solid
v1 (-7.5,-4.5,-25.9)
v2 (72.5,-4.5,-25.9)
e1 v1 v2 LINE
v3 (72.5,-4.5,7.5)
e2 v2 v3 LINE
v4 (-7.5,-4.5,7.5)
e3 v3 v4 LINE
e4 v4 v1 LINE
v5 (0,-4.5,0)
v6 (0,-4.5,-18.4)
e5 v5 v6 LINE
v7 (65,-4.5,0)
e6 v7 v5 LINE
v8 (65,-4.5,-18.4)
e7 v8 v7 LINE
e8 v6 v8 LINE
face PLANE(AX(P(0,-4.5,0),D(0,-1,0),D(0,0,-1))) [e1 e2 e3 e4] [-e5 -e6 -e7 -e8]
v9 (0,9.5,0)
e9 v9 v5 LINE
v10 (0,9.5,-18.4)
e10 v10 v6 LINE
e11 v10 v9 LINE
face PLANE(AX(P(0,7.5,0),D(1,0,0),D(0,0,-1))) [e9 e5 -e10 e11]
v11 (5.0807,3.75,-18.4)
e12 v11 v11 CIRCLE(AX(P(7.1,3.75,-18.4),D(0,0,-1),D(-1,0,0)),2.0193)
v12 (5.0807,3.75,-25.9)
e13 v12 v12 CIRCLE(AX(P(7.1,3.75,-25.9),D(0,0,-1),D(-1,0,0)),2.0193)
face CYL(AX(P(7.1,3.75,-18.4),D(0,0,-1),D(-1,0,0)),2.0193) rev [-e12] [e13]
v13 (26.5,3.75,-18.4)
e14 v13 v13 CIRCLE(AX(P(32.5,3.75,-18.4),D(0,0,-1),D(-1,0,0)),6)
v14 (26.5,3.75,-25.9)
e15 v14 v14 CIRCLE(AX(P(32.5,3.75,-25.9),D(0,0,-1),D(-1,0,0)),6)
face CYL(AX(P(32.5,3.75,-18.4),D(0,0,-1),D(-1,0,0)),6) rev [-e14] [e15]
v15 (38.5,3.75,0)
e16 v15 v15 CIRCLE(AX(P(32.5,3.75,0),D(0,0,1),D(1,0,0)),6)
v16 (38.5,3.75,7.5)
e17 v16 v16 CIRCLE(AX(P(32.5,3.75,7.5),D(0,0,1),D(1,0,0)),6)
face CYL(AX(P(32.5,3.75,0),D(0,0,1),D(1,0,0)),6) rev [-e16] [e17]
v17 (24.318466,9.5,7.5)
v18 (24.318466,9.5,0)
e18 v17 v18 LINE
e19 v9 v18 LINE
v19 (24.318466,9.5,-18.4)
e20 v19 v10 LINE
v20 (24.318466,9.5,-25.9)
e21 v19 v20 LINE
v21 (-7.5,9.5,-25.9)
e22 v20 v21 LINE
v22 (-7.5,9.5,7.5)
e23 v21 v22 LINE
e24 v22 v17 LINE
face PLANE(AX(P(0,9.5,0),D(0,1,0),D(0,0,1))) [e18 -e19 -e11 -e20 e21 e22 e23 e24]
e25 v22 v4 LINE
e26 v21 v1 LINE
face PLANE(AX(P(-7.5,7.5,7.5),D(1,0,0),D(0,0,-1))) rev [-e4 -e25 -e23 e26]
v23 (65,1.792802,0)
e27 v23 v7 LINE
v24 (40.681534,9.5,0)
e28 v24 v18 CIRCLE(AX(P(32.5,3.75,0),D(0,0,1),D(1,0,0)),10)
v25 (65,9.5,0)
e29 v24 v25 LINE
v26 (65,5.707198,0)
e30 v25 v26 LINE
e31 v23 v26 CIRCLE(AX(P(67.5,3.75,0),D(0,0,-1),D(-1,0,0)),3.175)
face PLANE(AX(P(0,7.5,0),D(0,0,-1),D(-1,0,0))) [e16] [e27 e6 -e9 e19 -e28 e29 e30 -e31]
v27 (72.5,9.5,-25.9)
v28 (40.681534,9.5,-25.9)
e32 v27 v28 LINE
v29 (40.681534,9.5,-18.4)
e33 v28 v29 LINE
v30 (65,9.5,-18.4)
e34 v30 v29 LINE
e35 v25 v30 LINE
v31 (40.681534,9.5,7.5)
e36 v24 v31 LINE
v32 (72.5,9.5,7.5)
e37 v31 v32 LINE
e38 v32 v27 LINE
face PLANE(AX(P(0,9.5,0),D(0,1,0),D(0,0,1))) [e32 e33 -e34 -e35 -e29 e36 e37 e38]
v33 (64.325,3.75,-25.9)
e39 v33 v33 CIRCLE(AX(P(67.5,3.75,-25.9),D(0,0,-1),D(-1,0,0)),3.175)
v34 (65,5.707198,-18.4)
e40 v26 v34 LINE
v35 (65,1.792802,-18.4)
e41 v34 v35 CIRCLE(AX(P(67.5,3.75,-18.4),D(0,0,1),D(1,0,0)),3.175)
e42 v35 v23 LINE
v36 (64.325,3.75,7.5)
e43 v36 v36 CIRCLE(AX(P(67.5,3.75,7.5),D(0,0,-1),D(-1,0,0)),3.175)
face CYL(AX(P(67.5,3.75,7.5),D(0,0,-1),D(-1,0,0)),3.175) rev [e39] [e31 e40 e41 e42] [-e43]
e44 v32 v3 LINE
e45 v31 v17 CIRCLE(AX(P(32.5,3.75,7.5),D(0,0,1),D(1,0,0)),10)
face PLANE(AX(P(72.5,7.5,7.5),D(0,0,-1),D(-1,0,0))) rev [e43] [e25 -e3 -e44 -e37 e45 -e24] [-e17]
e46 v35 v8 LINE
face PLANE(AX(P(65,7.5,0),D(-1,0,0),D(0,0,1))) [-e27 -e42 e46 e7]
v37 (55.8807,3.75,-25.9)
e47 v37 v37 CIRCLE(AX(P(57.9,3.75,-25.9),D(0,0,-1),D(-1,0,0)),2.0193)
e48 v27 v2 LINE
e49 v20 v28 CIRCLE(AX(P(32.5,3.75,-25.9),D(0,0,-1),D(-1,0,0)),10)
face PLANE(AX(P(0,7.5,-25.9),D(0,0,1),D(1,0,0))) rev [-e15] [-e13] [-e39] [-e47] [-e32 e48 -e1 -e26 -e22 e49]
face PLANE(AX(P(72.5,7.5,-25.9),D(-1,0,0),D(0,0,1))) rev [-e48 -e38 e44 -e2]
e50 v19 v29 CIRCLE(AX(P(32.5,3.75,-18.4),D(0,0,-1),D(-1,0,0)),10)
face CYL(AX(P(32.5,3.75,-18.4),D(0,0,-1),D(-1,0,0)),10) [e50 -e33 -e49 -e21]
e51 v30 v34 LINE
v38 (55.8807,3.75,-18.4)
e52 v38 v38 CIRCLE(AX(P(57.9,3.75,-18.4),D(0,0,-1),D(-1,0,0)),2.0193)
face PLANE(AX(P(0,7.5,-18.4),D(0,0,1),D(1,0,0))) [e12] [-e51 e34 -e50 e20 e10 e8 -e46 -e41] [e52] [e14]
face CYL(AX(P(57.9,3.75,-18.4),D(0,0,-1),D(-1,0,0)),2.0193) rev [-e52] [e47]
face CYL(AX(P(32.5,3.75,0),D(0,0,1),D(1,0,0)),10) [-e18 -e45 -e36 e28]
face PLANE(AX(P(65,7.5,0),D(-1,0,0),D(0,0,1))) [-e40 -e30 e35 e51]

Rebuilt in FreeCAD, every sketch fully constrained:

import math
import FreeCAD as App
import Part
import Sketcher

V = App.Vector

doc = App.newDocument("Part")
body = doc.addObject("PartDesign::Body", "Body")

sketch1 = doc.addObject("Sketcher::SketchObject", "Sketch")
body.addObject(sketch1)
sketch1.AttachmentSupport = (doc.XZ_Plane, [""])
sketch1.MapMode = "FlatFace"
sketch1.addGeometry([
    Part.LineSegment(V(72.5, -25.9, 0), V(-7.5, -25.9, 0)),
    Part.LineSegment(V(-7.5, -25.9, 0), V(-7.5, 7.5, 0)),
    Part.LineSegment(V(-7.5, 7.5, 0), V(72.5, 7.5, 0)),
    Part.LineSegment(V(72.5, 7.5, 0), V(72.5, -25.9, 0)),
    Part.LineSegment(V(0, 0, 0), V(0, -18.4, 0)),
    Part.LineSegment(V(0, -18.4, 0), V(65, -18.4, 0)),
    Part.LineSegment(V(65, -18.4, 0), V(65, 0, 0)),
    Part.LineSegment(V(65, 0, 0), V(0, 0, 0)),
], False)
sketch1.addConstraint([
    Sketcher.Constraint("Coincident", 0, 2, 1, 1),
    Sketcher.Constraint("Coincident", 1, 2, 2, 1),
    Sketcher.Constraint("Coincident", 2, 2, 3, 1),
    Sketcher.Constraint("Coincident", 3, 2, 0, 1),
    Sketcher.Constraint("Coincident", 4, 2, 5, 1),
    Sketcher.Constraint("Coincident", 5, 2, 6, 1),
    Sketcher.Constraint("Coincident", 6, 2, 7, 1),
    Sketcher.Constraint("Coincident", 7, 2, 4, 1),
    Sketcher.Constraint("Horizontal", 0),
    Sketcher.Constraint("Vertical", 1),
    Sketcher.Constraint("Horizontal", 2),
    Sketcher.Constraint("Vertical", 3),
    Sketcher.Constraint("Vertical", 4),
    Sketcher.Constraint("Horizontal", 5),
    Sketcher.Constraint("Vertical", 6),
    Sketcher.Constraint("Horizontal", 7),
    Sketcher.Constraint("Coincident", 7, 2, -1, 1),
    Sketcher.Constraint("DistanceX", 0, 2, 0, 1, 80.0),
    Sketcher.Constraint("DistanceX", 5, 1, 5, 2, 65.0),
    Sketcher.Constraint("DistanceY", 1, 1, 1, 2, 33.4),
    Sketcher.Constraint("DistanceY", 4, 2, 4, 1, 18.4),
    Sketcher.Constraint("DistanceX", 0, 2, -1, 1, 7.5),
    Sketcher.Constraint("DistanceY", 0, 2, -1, 1, 25.9),
])
pad1 = doc.addObject("PartDesign::Pad", "Pad")
body.addObject(pad1)
pad1.Profile = sketch1
pad1.Length = 7.5
pad1.Reversed = True

sketch2 = doc.addObject("Sketcher::SketchObject", "Sketch001")
body.addObject(sketch2)
sketch2.AttachmentSupport = (doc.XY_Plane, [""])
sketch2.MapMode = "FlatFace"
sketch2.AttachmentOffset = App.Placement(V(0, 0, 7.5), App.Rotation())
sketch2.addGeometry(Part.Circle(V(32.5, 3.75, 0), V(0, 0, 1), 10), False)
sketch2.addConstraint([
    Sketcher.Constraint("Diameter", 0, 20.0),
    Sketcher.Constraint("DistanceX", -1, 1, 0, 3, 32.5),
    Sketcher.Constraint("DistanceY", -1, 1, 0, 3, 3.75),
])
pad2 = doc.addObject("PartDesign::Pad", "Pad001")
body.addObject(pad2)
pad2.Profile = sketch2
pad2.Length = 7.5
pad2.Reversed = True

sketch3 = doc.addObject("Sketcher::SketchObject", "Sketch002")
body.addObject(sketch3)
sketch3.AttachmentSupport = (doc.XY_Plane, [""])
sketch3.MapMode = "FlatFace"
sketch3.AttachmentOffset = App.Placement(V(0, 0, 7.5), App.Rotation())
sketch3.addGeometry([
    Part.ArcOfCircle(Part.Circle(V(32.5, 3.75, 0), V(0, 0, 1), 6), math.radians(0), math.radians(157.975687)),
    Part.ArcOfCircle(Part.Circle(V(32.5, 3.75, 0), V(0, 0, 1), 6), math.radians(157.975687), math.radians(337.975687)),
    Part.ArcOfCircle(Part.Circle(V(32.5, 3.75, 0), V(0, 0, 1), 6), math.radians(-22.024313), math.radians(0)),
], False)
sketch3.addConstraint([
    Sketcher.Constraint("Tangent", 0, 2, 1, 1),
    Sketcher.Constraint("Tangent", 1, 2, 2, 1),
    Sketcher.Constraint("Tangent", 2, 2, 0, 1),
    Sketcher.Constraint("Horizontal", 1, 3, 2, 2),
    Sketcher.Constraint("Radius", 0, 6.0),
    Sketcher.Constraint("DistanceY", -1, 1, 0, 2, 6.0),
    Sketcher.Constraint("DistanceX", -1, 1, 0, 3, 32.5),
    Sketcher.Constraint("DistanceY", -1, 1, 1, 2, 1.5),
    Sketcher.Constraint("DistanceY", -1, 1, 0, 3, 3.75),
])
pocket1 = doc.addObject("PartDesign::Pocket", "Pocket")
body.addObject(pocket1)
pocket1.Profile = sketch3
pocket1.Length = 7.5

sketch4 = doc.addObject("Sketcher::SketchObject", "Sketch003")
body.addObject(sketch4)
sketch4.AttachmentSupport = (doc.XY_Plane, [""])
sketch4.MapMode = "FlatFace"
sketch4.AttachmentOffset = App.Placement(V(0, 0, -18.4), App.Rotation())
sketch4.addGeometry([
    Part.ArcOfCircle(Part.Circle(V(32.5, 3.75, 0), V(0, 0, 1), 10), math.radians(-22.024313), math.radians(22.024313)),
    Part.ArcOfCircle(Part.Circle(V(32.5, 3.75, 0), V(0, 0, 1), 10), math.radians(-157.975687), math.radians(-22.024313)),
    Part.ArcOfCircle(Part.Circle(V(32.5, 3.75, 0), V(0, 0, 1), 10), math.radians(180), math.radians(202.024313)),
    Part.ArcOfCircle(Part.Circle(V(32.5, 3.75, 0), V(0, 0, 1), 10), math.radians(157.975687), math.radians(180)),
    Part.ArcOfCircle(Part.Circle(V(32.5, 3.75, 0), V(0, 0, 1), 10), math.radians(22.024313), math.radians(157.975687)),
], False)
sketch4.addConstraint([
    Sketcher.Constraint("Tangent", 0, 1, 1, 2),
    Sketcher.Constraint("Tangent", 1, 1, 2, 2),
    Sketcher.Constraint("Tangent", 2, 1, 3, 2),
    Sketcher.Constraint("Tangent", 3, 1, 4, 2),
    Sketcher.Constraint("Tangent", 4, 1, 0, 2),
    Sketcher.Constraint("Coincident", 2, 3, 0, 3),
    Sketcher.Constraint("PointOnObject", 0, 1, -1),
    Sketcher.Constraint("PointOnObject", 1, 1, -1),
    Sketcher.Constraint("Horizontal", 4, 3, 2, 1),
    Sketcher.Constraint("Horizontal", 3, 1, 4, 1),
    Sketcher.Constraint("Vertical", 1, 1, 3, 1),
    Sketcher.Constraint("Radius", 0, 10.0),
    Sketcher.Constraint("DistanceX", -1, 1, 0, 3, 32.5),
    Sketcher.Constraint("DistanceY", -1, 1, 3, 1, 7.5),
])
pad3 = doc.addObject("PartDesign::Pad", "Pad002")
body.addObject(pad3)
pad3.Profile = sketch4
pad3.Length = 7.5
pad3.Reversed = True

sketch5 = doc.addObject("Sketcher::SketchObject", "Sketch004")
body.addObject(sketch5)
sketch5.AttachmentSupport = (doc.XY_Plane, [""])
sketch5.MapMode = "FlatFace"
sketch5.AttachmentOffset = App.Placement(V(0, 0, -18.4), App.Rotation())
sketch5.addGeometry([
    Part.ArcOfCircle(Part.Circle(V(32.5, 3.75, 0), V(0, 0, 1), 6), math.radians(22.024313), math.radians(180)),
    Part.ArcOfCircle(Part.Circle(V(32.5, 3.75, 0), V(0, 0, 1), 6), math.radians(-157.975687), math.radians(22.024313)),
    Part.ArcOfCircle(Part.Circle(V(32.5, 3.75, 0), V(0, 0, 1), 6), math.radians(180), math.radians(202.024313)),
], False)
sketch5.addConstraint([
    Sketcher.Constraint("Tangent", 0, 1, 1, 2),
    Sketcher.Constraint("Tangent", 1, 1, 2, 2),
    Sketcher.Constraint("Tangent", 2, 1, 0, 2),
    Sketcher.Constraint("Horizontal", 1, 3, 2, 1),
    Sketcher.Constraint("Radius", 0, 6.0),
    Sketcher.Constraint("DistanceY", -1, 1, 0, 1, 6.0),
    Sketcher.Constraint("DistanceX", -1, 1, 0, 3, 32.5),
    Sketcher.Constraint("DistanceY", -1, 1, 1, 1, 1.5),
    Sketcher.Constraint("DistanceY", -1, 1, 0, 3, 3.75),
])
pocket2 = doc.addObject("PartDesign::Pocket", "Pocket001")
body.addObject(pocket2)
pocket2.Profile = sketch5
pocket2.Length = 7.5

sketch6 = doc.addObject("Sketcher::SketchObject", "Sketch005")
body.addObject(sketch6)
sketch6.AttachmentSupport = (doc.XY_Plane, [""])
sketch6.MapMode = "FlatFace"
sketch6.AttachmentOffset = App.Placement(V(0, 0, -25.9), App.Rotation())
sketch6.addGeometry([
    Part.Circle(V(7.1, 3.75, 0), V(0, 0, 1), 2.0193),
    Part.Circle(V(57.9, 3.75, 0), V(0, 0, 1), 2.0193),
], False)
sketch6.addConstraint([
    Sketcher.Constraint("Equal", 0, 1),
    Sketcher.Constraint("Horizontal", 0, 3, 1, 3),
    Sketcher.Constraint("Diameter", 0, 4.0386),
    Sketcher.Constraint("DistanceX", -1, 1, 0, 3, 7.1),
    Sketcher.Constraint("DistanceX", -1, 1, 1, 3, 57.9),
    Sketcher.Constraint("DistanceY", -1, 1, 0, 3, 3.75),
])
pocket3 = doc.addObject("PartDesign::Pocket", "Pocket002")
body.addObject(pocket3)
pocket3.Profile = sketch6
pocket3.Length = 7.5
pocket3.Reversed = True

sketch7 = doc.addObject("Sketcher::SketchObject", "Sketch006")
body.addObject(sketch7)
sketch7.AttachmentSupport = (doc.XY_Plane, [""])
sketch7.MapMode = "FlatFace"
sketch7.AttachmentOffset = App.Placement(V(0, 0, -25.9), App.Rotation())
sketch7.addGeometry(Part.Circle(V(67.5, 3.75, 0), V(0, 0, 1), 3.175), False)
sketch7.addConstraint([
    Sketcher.Constraint("Diameter", 0, 6.35),
    Sketcher.Constraint("DistanceX", -1, 1, 0, 3, 67.5),
    Sketcher.Constraint("DistanceY", -1, 1, 0, 3, 3.75),
])
pocket4 = doc.addObject("PartDesign::Pocket", "Pocket003")
body.addObject(pocket4)
pocket4.Profile = sketch7
pocket4.Type = "ThroughAll"
pocket4.Reversed = True

sketch8 = doc.addObject("Sketcher::SketchObject", "Sketch007")
body.addObject(sketch8)
sketch8.AttachmentSupport = (doc.XZ_Plane, [""])
sketch8.MapMode = "FlatFace"
sketch8.addGeometry([
    Part.LineSegment(V(72.5, -25.9, 0), V(-7.5, -25.9, 0)),
    Part.LineSegment(V(-7.5, -25.9, 0), V(-7.5, 7.5, 0)),
    Part.LineSegment(V(-7.5, 7.5, 0), V(72.5, 7.5, 0)),
    Part.LineSegment(V(72.5, 7.5, 0), V(72.5, -25.9, 0)),
    Part.LineSegment(V(0, 0, 0), V(0, -18.4, 0)),
    Part.LineSegment(V(0, -18.4, 0), V(65, -18.4, 0)),
    Part.LineSegment(V(65, -18.4, 0), V(65, 0, 0)),
    Part.LineSegment(V(65, 0, 0), V(0, 0, 0)),
], False)
sketch8.addConstraint([
    Sketcher.Constraint("Coincident", 0, 2, 1, 1),
    Sketcher.Constraint("Coincident", 1, 2, 2, 1),
    Sketcher.Constraint("Coincident", 2, 2, 3, 1),
    Sketcher.Constraint("Coincident", 3, 2, 0, 1),
    Sketcher.Constraint("Coincident", 4, 2, 5, 1),
    Sketcher.Constraint("Coincident", 5, 2, 6, 1),
    Sketcher.Constraint("Coincident", 6, 2, 7, 1),
    Sketcher.Constraint("Coincident", 7, 2, 4, 1),
    Sketcher.Constraint("Horizontal", 0),
    Sketcher.Constraint("Vertical", 1),
    Sketcher.Constraint("Horizontal", 2),
    Sketcher.Constraint("Vertical", 3),
    Sketcher.Constraint("Vertical", 4),
    Sketcher.Constraint("Horizontal", 5),
    Sketcher.Constraint("Vertical", 6),
    Sketcher.Constraint("Horizontal", 7),
    Sketcher.Constraint("Coincident", 7, 2, -1, 1),
    Sketcher.Constraint("DistanceX", 0, 2, 0, 1, 80.0),
    Sketcher.Constraint("DistanceX", 5, 1, 5, 2, 65.0),
    Sketcher.Constraint("DistanceY", 1, 1, 1, 2, 33.4),
    Sketcher.Constraint("DistanceY", 4, 2, 4, 1, 18.4),
    Sketcher.Constraint("DistanceX", 0, 2, -1, 1, 7.5),
    Sketcher.Constraint("DistanceY", 0, 2, -1, 1, 25.9),
])
pad4 = doc.addObject("PartDesign::Pad", "Pad003")
body.addObject(pad4)
pad4.Profile = sketch8
pad4.Length = 6.5

sketch9 = doc.addObject("Sketcher::SketchObject", "Sketch008")
body.addObject(sketch9)
sketch9.AttachmentSupport = (doc.XY_Plane, [""])
sketch9.MapMode = "FlatFace"
sketch9.AttachmentOffset = App.Placement(V(0, 0, 7.5), App.Rotation())
sketch9.addGeometry([
    Part.ArcOfCircle(Part.Circle(V(32.5, 3.75, 0), V(0, 0, 1), 6), math.radians(0), math.radians(157.975687)),
    Part.LineSegment(V(26.937851, 6, 0), V(38.062149, 1.5, 0)),
    Part.ArcOfCircle(Part.Circle(V(32.5, 3.75, 0), V(0, 0, 1), 6), math.radians(-22.024313), math.radians(0)),
    Part.LineSegment(V(38.062149, 1.5, 0), V(26.937851, 6, 0)),
    Part.ArcOfCircle(Part.Circle(V(32.5, 3.75, 0), V(0, 0, 1), 6), math.radians(157.975687), math.radians(337.975687)),
], False)
sketch9.addConstraint([
    Sketcher.Constraint("Coincident", 0, 2, 1, 1),
    Sketcher.Constraint("Coincident", 1, 2, 2, 1),
    Sketcher.Constraint("Tangent", 2, 2, 0, 1),
    Sketcher.Constraint("Coincident", 3, 1, 4, 2),
    Sketcher.Constraint("Coincident", 4, 1, 3, 2),
    Sketcher.Constraint("Coincident", 4, 3, 0, 3),
    Sketcher.Constraint("Coincident", 3, 1, 1, 2),
    Sketcher.Constraint("Coincident", 4, 1, 0, 2),
    Sketcher.Constraint("Horizontal", 4, 3, 2, 2),
    Sketcher.Constraint("Radius", 0, 6.0),
    Sketcher.Constraint("DistanceY", -1, 1, 0, 2, 6.0),
    Sketcher.Constraint("DistanceX", -1, 1, 0, 3, 32.5),
    Sketcher.Constraint("DistanceY", -1, 1, 1, 2, 1.5),
    Sketcher.Constraint("DistanceY", -1, 1, 0, 3, 3.75),
])
pocket5 = doc.addObject("PartDesign::Pocket", "Pocket004")
body.addObject(pocket5)
pocket5.Profile = sketch9
pocket5.Type = "ThroughAll"

sketch10 = doc.addObject("Sketcher::SketchObject", "Sketch009")
body.addObject(sketch10)
sketch10.AttachmentSupport = (doc.XZ_Plane, [""])
sketch10.MapMode = "FlatFace"
sketch10.AttachmentOffset = App.Placement(V(0, 0, 6.5), App.Rotation())
sketch10.addGeometry([
    Part.LineSegment(V(-7.5, 7.5, 0), V(-7.5, -25.9, 0)),
    Part.LineSegment(V(-7.5, -25.9, 0), V(72.5, -25.9, 0)),
    Part.LineSegment(V(72.5, -25.9, 0), V(72.5, 7.5, 0)),
    Part.LineSegment(V(72.5, 7.5, 0), V(-7.5, 7.5, 0)),
], False)
sketch10.addConstraint([
    Sketcher.Constraint("Coincident", 0, 2, 1, 1),
    Sketcher.Constraint("Coincident", 1, 2, 2, 1),
    Sketcher.Constraint("Coincident", 2, 2, 3, 1),
    Sketcher.Constraint("Coincident", 3, 2, 0, 1),
    Sketcher.Constraint("Vertical", 0),
    Sketcher.Constraint("Horizontal", 1),
    Sketcher.Constraint("Vertical", 2),
    Sketcher.Constraint("Horizontal", 3),
    Sketcher.Constraint("DistanceX", 1, 1, 1, 2, 80.0),
    Sketcher.Constraint("DistanceY", 0, 2, 0, 1, 33.4),
    Sketcher.Constraint("DistanceX", 0, 2, -1, 1, 7.5),
    Sketcher.Constraint("DistanceY", 0, 2, -1, 1, 25.9),
])
pocket6 = doc.addObject("PartDesign::Pocket", "Pocket005")
body.addObject(pocket6)
pocket6.Profile = sketch10
pocket6.Length = 2

sketch11 = doc.addObject("Sketcher::SketchObject", "Sketch010")
body.addObject(sketch11)
sketch11.AttachmentSupport = (doc.XZ_Plane, [""])
sketch11.MapMode = "FlatFace"
sketch11.AttachmentOffset = App.Placement(V(0, 0, -7.5), App.Rotation())
sketch11.addGeometry([
    Part.LineSegment(V(-7.5, -25.9, 0), V(-7.5, 7.5, 0)),
    Part.LineSegment(V(-7.5, 7.5, 0), V(72.5, 7.5, 0)),
    Part.LineSegment(V(72.5, 7.5, 0), V(72.5, -25.9, 0)),
    Part.LineSegment(V(72.5, -25.9, 0), V(-7.5, -25.9, 0)),
    Part.LineSegment(V(65, 0, 0), V(0, 0, 0)),
    Part.LineSegment(V(0, 0, 0), V(0, -18.4, 0)),
    Part.LineSegment(V(0, -18.4, 0), V(65, -18.4, 0)),
    Part.LineSegment(V(65, -18.4, 0), V(65, 0, 0)),
], False)
sketch11.addConstraint([
    Sketcher.Constraint("Coincident", 0, 2, 1, 1),
    Sketcher.Constraint("Coincident", 1, 2, 2, 1),
    Sketcher.Constraint("Coincident", 2, 2, 3, 1),
    Sketcher.Constraint("Coincident", 3, 2, 0, 1),
    Sketcher.Constraint("Coincident", 4, 2, 5, 1),
    Sketcher.Constraint("Coincident", 5, 2, 6, 1),
    Sketcher.Constraint("Coincident", 6, 2, 7, 1),
    Sketcher.Constraint("Coincident", 7, 2, 4, 1),
    Sketcher.Constraint("Vertical", 0),
    Sketcher.Constraint("Horizontal", 1),
    Sketcher.Constraint("Vertical", 2),
    Sketcher.Constraint("Horizontal", 3),
    Sketcher.Constraint("Horizontal", 4),
    Sketcher.Constraint("Vertical", 5),
    Sketcher.Constraint("Horizontal", 6),
    Sketcher.Constraint("Vertical", 7),
    Sketcher.Constraint("Coincident", 4, 2, -1, 1),
    Sketcher.Constraint("DistanceX", 1, 1, 1, 2, 80.0),
    Sketcher.Constraint("DistanceX", 4, 2, 4, 1, 65.0),
    Sketcher.Constraint("DistanceY", 0, 1, 0, 2, 33.4),
    Sketcher.Constraint("DistanceY", 5, 2, 5, 1, 18.4),
    Sketcher.Constraint("DistanceX", 0, 2, -1, 1, 7.5),
    Sketcher.Constraint("DistanceY", -1, 1, 0, 2, 7.5),
])
pad5 = doc.addObject("PartDesign::Pad", "Pad004")
body.addObject(pad5)
pad5.Profile = sketch11
pad5.Length = 2
pad5.Reversed = True

sketch12 = doc.addObject("Sketcher::SketchObject", "Sketch011")
body.addObject(sketch12)
sketch12.AttachmentSupport = (doc.XY_Plane, [""])
sketch12.MapMode = "FlatFace"
sketch12.AttachmentOffset = App.Placement(V(0, 0, 7.5), App.Rotation())
sketch12.addGeometry([
    Part.ArcOfCircle(Part.Circle(V(32.5, 3.75, 0), V(0, 0, 1), 6), math.radians(0), math.radians(157.975687)),
    Part.LineSegment(V(26.937851, 6, 0), V(38.062149, 1.5, 0)),
    Part.ArcOfCircle(Part.Circle(V(32.5, 3.75, 0), V(0, 0, 1), 6), math.radians(-22.024313), math.radians(0)),
    Part.LineSegment(V(38.062149, 1.5, 0), V(26.937851, 6, 0)),
    Part.ArcOfCircle(Part.Circle(V(32.5, 3.75, 0), V(0, 0, 1), 6), math.radians(157.975687), math.radians(337.975687)),
], False)
sketch12.addConstraint([
    Sketcher.Constraint("Coincident", 0, 2, 1, 1),
    Sketcher.Constraint("Coincident", 1, 2, 2, 1),
    Sketcher.Constraint("Tangent", 2, 2, 0, 1),
    Sketcher.Constraint("Coincident", 3, 1, 4, 2),
    Sketcher.Constraint("Coincident", 4, 1, 3, 2),
    Sketcher.Constraint("Coincident", 4, 3, 0, 3),
    Sketcher.Constraint("Coincident", 3, 1, 1, 2),
    Sketcher.Constraint("Coincident", 4, 1, 0, 2),
    Sketcher.Constraint("Horizontal", 4, 3, 2, 2),
    Sketcher.Constraint("Radius", 0, 6.0),
    Sketcher.Constraint("DistanceY", -1, 1, 0, 2, 6.0),
    Sketcher.Constraint("DistanceX", -1, 1, 0, 3, 32.5),
    Sketcher.Constraint("DistanceY", -1, 1, 1, 2, 1.5),
    Sketcher.Constraint("DistanceY", -1, 1, 0, 3, 3.75),
])
pocket7 = doc.addObject("PartDesign::Pocket", "Pocket006")
body.addObject(pocket7)
pocket7.Profile = sketch12
pocket7.Type = "ThroughAll"

doc.recompute()
